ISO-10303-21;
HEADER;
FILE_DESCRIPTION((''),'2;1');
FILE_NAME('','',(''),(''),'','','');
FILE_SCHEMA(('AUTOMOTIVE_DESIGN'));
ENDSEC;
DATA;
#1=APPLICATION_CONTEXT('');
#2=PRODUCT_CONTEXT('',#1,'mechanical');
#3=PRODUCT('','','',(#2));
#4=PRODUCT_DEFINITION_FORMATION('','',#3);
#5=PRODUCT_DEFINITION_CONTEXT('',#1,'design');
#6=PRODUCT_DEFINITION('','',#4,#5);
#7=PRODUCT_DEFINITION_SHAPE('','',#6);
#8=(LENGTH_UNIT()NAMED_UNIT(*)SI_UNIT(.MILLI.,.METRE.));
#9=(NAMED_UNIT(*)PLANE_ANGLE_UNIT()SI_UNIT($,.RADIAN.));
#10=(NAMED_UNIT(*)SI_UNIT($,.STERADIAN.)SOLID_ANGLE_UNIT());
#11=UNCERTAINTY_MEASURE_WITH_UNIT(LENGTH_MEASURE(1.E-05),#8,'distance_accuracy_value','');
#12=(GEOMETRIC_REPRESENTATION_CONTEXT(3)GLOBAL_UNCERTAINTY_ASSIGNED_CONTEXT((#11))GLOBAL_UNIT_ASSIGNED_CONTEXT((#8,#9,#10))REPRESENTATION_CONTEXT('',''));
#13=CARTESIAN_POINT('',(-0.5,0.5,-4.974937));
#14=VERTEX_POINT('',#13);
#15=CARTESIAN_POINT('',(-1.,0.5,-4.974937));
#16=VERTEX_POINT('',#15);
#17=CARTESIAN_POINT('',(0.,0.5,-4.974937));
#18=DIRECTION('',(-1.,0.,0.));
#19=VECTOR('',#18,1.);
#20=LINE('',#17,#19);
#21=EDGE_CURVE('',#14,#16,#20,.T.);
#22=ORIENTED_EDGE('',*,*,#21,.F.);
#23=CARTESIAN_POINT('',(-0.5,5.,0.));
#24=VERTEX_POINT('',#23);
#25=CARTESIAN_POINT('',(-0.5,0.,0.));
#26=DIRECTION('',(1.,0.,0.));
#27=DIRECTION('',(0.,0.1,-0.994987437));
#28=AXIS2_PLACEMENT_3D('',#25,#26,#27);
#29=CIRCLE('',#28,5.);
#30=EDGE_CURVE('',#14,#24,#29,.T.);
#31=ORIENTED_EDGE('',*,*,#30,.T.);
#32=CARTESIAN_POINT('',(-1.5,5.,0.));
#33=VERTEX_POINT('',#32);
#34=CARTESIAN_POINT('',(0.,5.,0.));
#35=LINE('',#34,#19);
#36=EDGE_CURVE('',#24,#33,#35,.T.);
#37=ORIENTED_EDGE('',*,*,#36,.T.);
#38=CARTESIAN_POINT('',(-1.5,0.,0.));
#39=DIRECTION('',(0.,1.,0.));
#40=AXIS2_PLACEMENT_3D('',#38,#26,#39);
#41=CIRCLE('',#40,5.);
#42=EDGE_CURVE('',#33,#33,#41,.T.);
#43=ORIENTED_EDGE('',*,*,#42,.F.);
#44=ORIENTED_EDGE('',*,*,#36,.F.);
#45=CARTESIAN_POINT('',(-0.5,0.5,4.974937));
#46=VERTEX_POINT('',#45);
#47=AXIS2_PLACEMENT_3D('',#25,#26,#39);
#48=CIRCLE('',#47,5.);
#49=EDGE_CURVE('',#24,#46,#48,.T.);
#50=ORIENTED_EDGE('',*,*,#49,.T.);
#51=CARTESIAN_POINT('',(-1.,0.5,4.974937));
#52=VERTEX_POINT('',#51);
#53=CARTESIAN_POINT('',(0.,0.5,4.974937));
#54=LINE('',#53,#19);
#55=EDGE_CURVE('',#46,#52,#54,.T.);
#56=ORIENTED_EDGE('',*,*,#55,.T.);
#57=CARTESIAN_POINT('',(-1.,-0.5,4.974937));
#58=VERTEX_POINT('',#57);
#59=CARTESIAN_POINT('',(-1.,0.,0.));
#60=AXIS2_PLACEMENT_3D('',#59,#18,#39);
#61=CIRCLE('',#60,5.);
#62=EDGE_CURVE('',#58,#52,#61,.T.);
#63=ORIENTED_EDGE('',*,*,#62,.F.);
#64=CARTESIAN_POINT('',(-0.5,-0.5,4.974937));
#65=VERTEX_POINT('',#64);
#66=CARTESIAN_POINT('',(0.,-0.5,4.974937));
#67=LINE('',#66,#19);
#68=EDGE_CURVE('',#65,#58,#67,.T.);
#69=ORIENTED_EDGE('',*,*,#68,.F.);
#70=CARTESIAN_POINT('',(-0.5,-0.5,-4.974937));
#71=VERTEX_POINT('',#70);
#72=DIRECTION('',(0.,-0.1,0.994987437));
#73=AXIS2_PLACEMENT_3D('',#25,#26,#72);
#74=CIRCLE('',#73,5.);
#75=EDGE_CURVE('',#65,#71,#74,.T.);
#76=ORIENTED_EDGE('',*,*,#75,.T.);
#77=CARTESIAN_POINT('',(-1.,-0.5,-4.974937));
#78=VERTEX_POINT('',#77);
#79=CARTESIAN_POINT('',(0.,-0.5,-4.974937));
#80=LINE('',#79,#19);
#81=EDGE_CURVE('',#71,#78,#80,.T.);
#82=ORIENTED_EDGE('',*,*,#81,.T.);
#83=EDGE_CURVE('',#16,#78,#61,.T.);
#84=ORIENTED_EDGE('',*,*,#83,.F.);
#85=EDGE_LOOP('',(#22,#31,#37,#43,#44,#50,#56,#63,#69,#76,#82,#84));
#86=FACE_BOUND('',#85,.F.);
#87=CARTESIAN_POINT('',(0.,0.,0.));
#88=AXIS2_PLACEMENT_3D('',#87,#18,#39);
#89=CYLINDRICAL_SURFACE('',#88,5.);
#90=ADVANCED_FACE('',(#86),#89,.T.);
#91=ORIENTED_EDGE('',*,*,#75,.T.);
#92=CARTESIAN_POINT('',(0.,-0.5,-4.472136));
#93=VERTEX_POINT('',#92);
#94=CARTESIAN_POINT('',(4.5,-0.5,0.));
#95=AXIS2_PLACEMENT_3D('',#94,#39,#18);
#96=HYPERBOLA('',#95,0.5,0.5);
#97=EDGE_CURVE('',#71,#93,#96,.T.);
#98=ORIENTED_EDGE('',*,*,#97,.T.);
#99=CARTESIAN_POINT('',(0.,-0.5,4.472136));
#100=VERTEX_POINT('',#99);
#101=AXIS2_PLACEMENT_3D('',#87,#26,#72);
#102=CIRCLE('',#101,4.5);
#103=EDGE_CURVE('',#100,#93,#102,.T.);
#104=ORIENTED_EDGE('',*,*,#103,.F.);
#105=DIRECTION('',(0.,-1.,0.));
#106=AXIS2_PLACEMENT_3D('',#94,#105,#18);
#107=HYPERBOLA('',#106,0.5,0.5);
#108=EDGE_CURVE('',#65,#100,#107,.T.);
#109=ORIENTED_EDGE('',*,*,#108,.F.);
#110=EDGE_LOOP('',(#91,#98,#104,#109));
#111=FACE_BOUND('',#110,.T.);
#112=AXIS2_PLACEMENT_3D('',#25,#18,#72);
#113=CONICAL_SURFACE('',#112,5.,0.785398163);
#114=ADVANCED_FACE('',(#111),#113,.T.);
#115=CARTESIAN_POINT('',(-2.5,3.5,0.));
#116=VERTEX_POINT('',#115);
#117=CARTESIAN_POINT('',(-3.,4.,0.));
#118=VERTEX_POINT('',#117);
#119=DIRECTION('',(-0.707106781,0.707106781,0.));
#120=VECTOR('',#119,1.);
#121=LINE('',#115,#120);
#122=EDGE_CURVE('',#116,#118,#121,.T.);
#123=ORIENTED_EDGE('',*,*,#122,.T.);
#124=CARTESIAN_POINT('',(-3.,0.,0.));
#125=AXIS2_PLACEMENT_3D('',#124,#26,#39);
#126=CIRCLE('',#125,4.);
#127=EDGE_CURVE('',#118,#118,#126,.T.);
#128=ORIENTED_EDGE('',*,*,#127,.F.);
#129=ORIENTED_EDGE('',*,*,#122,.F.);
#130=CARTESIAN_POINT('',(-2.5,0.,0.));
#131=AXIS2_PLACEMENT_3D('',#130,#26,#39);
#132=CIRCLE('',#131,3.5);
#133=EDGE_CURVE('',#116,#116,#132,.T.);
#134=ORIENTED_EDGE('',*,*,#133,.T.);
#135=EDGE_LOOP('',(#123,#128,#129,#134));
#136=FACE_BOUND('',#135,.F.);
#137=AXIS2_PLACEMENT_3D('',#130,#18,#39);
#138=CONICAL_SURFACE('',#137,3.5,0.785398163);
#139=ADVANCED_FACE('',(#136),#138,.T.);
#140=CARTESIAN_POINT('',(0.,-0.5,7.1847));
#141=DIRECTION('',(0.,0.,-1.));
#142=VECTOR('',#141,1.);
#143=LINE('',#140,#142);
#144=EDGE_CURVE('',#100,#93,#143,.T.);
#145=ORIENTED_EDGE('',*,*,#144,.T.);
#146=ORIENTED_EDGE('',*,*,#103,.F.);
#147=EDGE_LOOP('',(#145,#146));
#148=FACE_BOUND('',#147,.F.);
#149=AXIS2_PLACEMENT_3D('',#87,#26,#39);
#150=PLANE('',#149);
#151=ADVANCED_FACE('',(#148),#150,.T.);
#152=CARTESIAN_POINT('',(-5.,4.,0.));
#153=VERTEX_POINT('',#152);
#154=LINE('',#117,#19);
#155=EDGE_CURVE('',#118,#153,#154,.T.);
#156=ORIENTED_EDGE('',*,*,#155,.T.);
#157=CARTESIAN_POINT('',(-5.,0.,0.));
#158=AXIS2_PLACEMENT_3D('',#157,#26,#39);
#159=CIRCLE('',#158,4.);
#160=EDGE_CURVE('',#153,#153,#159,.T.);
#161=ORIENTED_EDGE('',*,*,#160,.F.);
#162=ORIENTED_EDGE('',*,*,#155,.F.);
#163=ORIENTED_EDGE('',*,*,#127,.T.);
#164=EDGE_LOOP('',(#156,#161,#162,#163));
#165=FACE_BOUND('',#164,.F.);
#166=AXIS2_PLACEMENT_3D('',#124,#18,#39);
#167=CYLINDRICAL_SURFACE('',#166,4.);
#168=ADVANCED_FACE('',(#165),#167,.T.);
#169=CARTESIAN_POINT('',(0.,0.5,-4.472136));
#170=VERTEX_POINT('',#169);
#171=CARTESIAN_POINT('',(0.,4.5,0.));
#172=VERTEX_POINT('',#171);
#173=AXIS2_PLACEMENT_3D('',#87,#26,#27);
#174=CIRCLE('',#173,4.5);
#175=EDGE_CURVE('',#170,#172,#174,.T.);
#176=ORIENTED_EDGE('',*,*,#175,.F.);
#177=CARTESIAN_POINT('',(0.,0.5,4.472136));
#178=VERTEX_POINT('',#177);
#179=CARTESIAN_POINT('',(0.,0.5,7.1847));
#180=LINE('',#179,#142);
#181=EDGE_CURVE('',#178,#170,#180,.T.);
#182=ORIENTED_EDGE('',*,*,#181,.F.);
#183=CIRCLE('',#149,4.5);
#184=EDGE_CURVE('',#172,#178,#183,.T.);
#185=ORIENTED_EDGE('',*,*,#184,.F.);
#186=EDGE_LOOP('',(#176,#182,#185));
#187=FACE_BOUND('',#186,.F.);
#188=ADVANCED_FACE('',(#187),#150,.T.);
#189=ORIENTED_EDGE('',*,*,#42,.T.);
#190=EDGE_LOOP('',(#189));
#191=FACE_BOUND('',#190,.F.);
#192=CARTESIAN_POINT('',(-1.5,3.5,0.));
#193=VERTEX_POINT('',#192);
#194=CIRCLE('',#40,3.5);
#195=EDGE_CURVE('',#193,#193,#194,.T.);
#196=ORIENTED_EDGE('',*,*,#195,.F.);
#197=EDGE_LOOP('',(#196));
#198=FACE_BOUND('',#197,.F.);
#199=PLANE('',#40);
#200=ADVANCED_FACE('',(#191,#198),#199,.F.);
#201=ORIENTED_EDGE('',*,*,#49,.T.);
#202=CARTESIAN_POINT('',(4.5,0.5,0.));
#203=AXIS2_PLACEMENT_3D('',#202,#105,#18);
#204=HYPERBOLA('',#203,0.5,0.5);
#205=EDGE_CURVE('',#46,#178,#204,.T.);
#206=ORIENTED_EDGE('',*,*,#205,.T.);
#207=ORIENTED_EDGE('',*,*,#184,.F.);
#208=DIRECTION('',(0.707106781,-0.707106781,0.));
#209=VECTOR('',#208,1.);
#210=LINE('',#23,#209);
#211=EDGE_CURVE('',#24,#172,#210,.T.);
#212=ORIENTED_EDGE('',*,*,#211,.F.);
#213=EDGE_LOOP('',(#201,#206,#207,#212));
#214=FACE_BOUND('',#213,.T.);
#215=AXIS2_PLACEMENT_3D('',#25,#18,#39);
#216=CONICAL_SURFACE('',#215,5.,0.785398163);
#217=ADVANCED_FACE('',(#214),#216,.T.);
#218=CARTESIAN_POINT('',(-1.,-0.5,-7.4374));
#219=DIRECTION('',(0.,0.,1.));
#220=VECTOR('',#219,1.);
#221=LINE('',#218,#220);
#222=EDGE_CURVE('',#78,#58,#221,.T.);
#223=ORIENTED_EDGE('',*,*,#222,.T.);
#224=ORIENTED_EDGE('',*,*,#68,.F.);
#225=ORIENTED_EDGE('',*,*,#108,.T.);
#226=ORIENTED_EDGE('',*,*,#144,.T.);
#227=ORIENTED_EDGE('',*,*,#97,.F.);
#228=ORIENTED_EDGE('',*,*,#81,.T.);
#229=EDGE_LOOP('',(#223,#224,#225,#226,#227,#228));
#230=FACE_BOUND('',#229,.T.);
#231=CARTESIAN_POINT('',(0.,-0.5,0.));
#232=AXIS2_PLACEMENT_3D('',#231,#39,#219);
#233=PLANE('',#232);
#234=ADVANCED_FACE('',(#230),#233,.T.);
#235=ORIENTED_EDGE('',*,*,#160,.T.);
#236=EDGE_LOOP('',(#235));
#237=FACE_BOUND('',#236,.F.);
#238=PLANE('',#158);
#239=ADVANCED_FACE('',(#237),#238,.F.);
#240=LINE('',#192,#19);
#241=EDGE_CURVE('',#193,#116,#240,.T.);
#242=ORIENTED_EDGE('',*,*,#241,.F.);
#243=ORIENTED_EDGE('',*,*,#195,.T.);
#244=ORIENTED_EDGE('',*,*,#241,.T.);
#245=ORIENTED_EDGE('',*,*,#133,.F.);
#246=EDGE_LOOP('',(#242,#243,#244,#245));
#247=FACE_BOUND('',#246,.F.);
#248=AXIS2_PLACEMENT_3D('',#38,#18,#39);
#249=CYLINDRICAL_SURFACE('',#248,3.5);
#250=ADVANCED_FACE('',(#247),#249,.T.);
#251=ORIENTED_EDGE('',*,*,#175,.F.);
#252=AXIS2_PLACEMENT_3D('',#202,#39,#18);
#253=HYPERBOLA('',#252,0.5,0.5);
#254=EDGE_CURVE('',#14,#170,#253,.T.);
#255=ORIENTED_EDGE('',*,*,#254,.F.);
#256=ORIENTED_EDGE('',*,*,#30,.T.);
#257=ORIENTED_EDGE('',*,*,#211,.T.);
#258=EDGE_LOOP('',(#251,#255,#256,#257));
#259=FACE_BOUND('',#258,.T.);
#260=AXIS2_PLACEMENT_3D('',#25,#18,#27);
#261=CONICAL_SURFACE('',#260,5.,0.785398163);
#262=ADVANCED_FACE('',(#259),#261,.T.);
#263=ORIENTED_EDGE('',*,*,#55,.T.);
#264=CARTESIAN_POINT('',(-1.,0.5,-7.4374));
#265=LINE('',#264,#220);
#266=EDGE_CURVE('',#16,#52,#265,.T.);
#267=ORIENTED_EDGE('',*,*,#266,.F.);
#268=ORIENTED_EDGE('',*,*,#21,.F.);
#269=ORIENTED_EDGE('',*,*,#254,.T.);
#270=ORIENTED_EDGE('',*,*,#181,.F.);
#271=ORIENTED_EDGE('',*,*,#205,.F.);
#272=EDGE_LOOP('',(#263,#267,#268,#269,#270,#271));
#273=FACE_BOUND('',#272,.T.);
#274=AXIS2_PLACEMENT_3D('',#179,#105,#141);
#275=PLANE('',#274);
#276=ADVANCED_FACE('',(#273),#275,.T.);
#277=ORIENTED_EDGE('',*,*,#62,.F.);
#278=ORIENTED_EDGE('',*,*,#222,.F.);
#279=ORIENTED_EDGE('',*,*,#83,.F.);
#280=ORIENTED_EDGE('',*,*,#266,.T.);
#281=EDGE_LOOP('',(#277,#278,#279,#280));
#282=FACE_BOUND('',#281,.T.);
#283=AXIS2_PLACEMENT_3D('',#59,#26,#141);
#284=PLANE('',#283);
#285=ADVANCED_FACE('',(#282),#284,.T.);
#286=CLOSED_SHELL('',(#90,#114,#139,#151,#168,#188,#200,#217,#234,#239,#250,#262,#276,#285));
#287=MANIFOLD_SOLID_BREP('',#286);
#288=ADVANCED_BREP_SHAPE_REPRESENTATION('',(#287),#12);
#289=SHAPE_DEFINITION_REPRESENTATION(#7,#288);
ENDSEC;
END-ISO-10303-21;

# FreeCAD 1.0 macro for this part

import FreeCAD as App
import Part
import Sketcher

V = App.Vector


def edges_at(feature, points):
    """Names of the edges that pass closest to the given points."""
    edges = feature.Shape.Edges
    near = lambda p: min(range(len(edges)), key=lambda i: edges[i].distToShape(Part.Vertex(*p))[0])
    return sorted({f"Edge{near(p) + 1}" for p in points})


def add_polygon(sketch, points):
    """Adds a closed chain of lines whose ends are joined by coincident constraints."""
    first, n = sketch.GeometryCount, len(points)
    for a, b in zip(points, points[1:] + points[:1]):
        sketch.addGeometry(Part.LineSegment(App.Vector(*a, 0), App.Vector(*b, 0)), False)
    for i in range(n):
        sketch.addConstraint(Sketcher.Constraint("Coincident", first + i, 2, first + (i + 1) % n, 1))

doc = App.newDocument("Part")
body = doc.addObject("PartDesign::Body", "Body")

sketch1 = doc.addObject("Sketcher::SketchObject", "Sketch")
body.addObject(sketch1)
sketch1.AttachmentSupport = (doc.XY_Plane, [""])
sketch1.MapMode = "FlatFace"
add_polygon(sketch1, [(-5, 4), (-5, 0), (0, 0), (0, 5), (-1.5, 5), (-1.5, 3.5), (-2.5, 3.5), (-3, 4)])
sketch1.addConstraint(Sketcher.Constraint("Vertical", 0))
sketch1.addConstraint(Sketcher.Constraint("Horizontal", 1))
sketch1.addConstraint(Sketcher.Constraint("Vertical", 2))
sketch1.addConstraint(Sketcher.Constraint("Horizontal", 3))
sketch1.addConstraint(Sketcher.Constraint("Vertical", 4))
sketch1.addConstraint(Sketcher.Constraint("Horizontal", 5))
sketch1.addConstraint(Sketcher.Constraint("Horizontal", 7))
sketch1.addConstraint(Sketcher.Constraint("Coincident", 1, 2, -1, 1))
sketch1.addConstraint(Sketcher.Constraint("Equal", 1, 2))
sketch1.addConstraint(Sketcher.Constraint("Equal", 3, 4))
sketch1.addConstraint(Sketcher.Constraint("DistanceX", 1, 1, 1, 2, 5.0))
sketch1.addConstraint(Sketcher.Constraint("DistanceX", 5, 2, 5, 1, 1.0))
sketch1.addConstraint(Sketcher.Constraint("DistanceX", 3, 2, 3, 1, 1.5))
sketch1.addConstraint(Sketcher.Constraint("DistanceY", 6, 2, 3, 2, 1.0))
sketch1.addConstraint(Sketcher.Constraint("DistanceX", 6, 2, 4, 2, 1.5))
revolution = doc.addObject("PartDesign::Revolution", "Revolution")
body.addObject(revolution)
revolution.Profile = sketch1
revolution.ReferenceAxis = (sketch1, ["H_Axis"])
revolution.Angle = 360

sketch2 = doc.addObject("Sketcher::SketchObject", "Sketch001")
body.addObject(sketch2)
sketch2.AttachmentSupport = (doc.YZ_Plane, [""])
sketch2.MapMode = "FlatFace"
add_polygon(sketch2, [(0.5, 7.2), (-0.5, 7.2), (-0.5, -7.4), (0.5, -7.4)])
sketch2.addConstraint(Sketcher.Constraint("Horizontal", 0))
sketch2.addConstraint(Sketcher.Constraint("Vertical", 1))
sketch2.addConstraint(Sketcher.Constraint("Horizontal", 2))
sketch2.addConstraint(Sketcher.Constraint("Vertical", 3))
sketch2.addConstraint(Sketcher.Constraint("DistanceX", 0, 2, 0, 1, 1.0))
sketch2.addConstraint(Sketcher.Constraint("DistanceX", 0, 2, -1, 1, 0.5))
sketch2.addConstraint(Sketcher.Constraint("DistanceY", 1, 2, 1, 1, 14.622))
sketch2.addConstraint(Sketcher.Constraint("DistanceY", -1, 1, 0, 2, 7.1847))
pocket1 = doc.addObject("PartDesign::Pocket", "Pocket")
body.addObject(pocket1)
pocket1.Profile = sketch2
pocket1.Length = 1
doc.recompute()

chamfer = doc.addObject("PartDesign::Chamfer", "Chamfer")
body.addObject(chamfer)
chamfer.Base = (pocket1, edges_at(pocket1, [(0, -5, 0), (0, 3.708, -3.354), (0, 3.708, 3.354)]))
chamfer.Size = 0.5

doc.recompute()
